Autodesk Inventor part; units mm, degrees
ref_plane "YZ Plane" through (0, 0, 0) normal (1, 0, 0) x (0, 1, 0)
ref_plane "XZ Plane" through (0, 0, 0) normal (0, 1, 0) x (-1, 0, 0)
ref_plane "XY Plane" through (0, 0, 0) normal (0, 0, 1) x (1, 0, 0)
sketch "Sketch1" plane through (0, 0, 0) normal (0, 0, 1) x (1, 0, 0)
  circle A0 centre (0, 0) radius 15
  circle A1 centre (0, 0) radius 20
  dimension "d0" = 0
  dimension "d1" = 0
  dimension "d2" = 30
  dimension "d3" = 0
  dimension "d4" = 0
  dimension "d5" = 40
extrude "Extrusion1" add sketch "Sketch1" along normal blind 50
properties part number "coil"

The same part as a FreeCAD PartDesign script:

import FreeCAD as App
import Part
import Sketcher

V = App.Vector

doc = App.newDocument("Part")
body = doc.addObject("PartDesign::Body", "Body")

sketch1 = doc.addObject("Sketcher::SketchObject", "Sketch")
body.addObject(sketch1)
sketch1.AttachmentSupport = (doc.XY_Plane, [""])
sketch1.MapMode = "FlatFace"
sketch1.addGeometry(Part.Circle(V(0, 0, 0), V(0, 0, 1), 20), False)
sketch1.addGeometry(Part.Circle(V(0, 0, 0), V(0, 0, 1), 15), False)
sketch1.addConstraint(Sketcher.Constraint("Coincident", 0, 3, -1, 1))
sketch1.addConstraint(Sketcher.Constraint("Coincident", 1, 3, -1, 1))
sketch1.addConstraint(Sketcher.Constraint("Diameter", 0, 40.0))
sketch1.addConstraint(Sketcher.Constraint("Diameter", 1, 30.0))
pad1 = doc.addObject("PartDesign::Pad", "Pad")
body.addObject(pad1)
pad1.Profile = sketch1
pad1.Length = 50

doc.recompute()
